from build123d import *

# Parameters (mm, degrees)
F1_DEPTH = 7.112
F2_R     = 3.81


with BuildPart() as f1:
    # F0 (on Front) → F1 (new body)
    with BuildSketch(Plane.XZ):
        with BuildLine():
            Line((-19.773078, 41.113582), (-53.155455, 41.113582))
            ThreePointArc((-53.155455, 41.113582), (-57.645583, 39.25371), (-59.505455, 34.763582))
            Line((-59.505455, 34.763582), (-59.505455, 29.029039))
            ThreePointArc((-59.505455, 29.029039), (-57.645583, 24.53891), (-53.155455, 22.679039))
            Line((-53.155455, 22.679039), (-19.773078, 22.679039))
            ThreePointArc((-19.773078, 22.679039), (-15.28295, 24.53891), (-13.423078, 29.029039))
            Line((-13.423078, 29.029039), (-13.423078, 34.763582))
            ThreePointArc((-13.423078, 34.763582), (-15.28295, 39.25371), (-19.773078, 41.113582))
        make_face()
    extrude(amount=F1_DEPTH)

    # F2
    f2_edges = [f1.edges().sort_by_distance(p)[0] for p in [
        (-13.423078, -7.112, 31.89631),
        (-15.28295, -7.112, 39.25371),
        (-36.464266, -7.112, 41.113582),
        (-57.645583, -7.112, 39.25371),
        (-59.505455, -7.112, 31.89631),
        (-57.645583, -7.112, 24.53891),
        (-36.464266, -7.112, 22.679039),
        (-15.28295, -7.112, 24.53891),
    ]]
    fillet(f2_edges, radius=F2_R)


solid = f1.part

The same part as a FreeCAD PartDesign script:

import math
import FreeCAD as App
import Part
import Sketcher
Q = App.Units.Quantity


def edges_at(feature, points):
    """Names of the edges that pass closest to the given points."""
    edges = feature.Shape.Edges
    near = lambda p: min(range(len(edges)), key=lambda i: edges[i].distToShape(Part.Vertex(*p))[0])
    return sorted({f"Edge{near(p) + 1}" for p in points})

doc = App.newDocument("Part")
params = doc.addObject("Spreadsheet::Sheet", "Params")
for row, (alias, value) in enumerate([
    ("sketch1_radius", "0.25 in"),
    ("pad1_length", "0.28 in"),
    ("fillet_radius", "0.15 in"),
], start=1):
    params.set(f"A{row}", alias)
    params.set(f"B{row}", "=" + value)
    params.setAlias(f"B{row}", alias)

body = doc.addObject("PartDesign::Body", "Body")

sketch1 = body.newObject("Sketcher::SketchObject", "Sketch")
sketch1.AttachmentSupport = (doc.getObject("XZ_Plane"), [""])
sketch1.MapMode = "FlatFace"
sketch1.addGeometry([
    Part.LineSegment(App.Vector(-20, 41, 0), App.Vector(-53, 41, 0)),
    Part.ArcOfCircle(Part.Circle(App.Vector(-53, 35, 0), App.Vector(0, 0, 1), 6), math.radians(90), math.radians(180)),
    Part.LineSegment(App.Vector(-60, 35, 0), App.Vector(-60, 29, 0)),
    Part.ArcOfCircle(Part.Circle(App.Vector(-53, 29, 0), App.Vector(0, 0, 1), 6), math.radians(180), math.radians(270)),
    Part.LineSegment(App.Vector(-53, 23, 0), App.Vector(-20, 23, 0)),
    Part.ArcOfCircle(Part.Circle(App.Vector(-20, 29, 0), App.Vector(0, 0, 1), 6), math.radians(-90), math.radians(0)),
    Part.LineSegment(App.Vector(-13, 29, 0), App.Vector(-13, 35, 0)),
    Part.ArcOfCircle(Part.Circle(App.Vector(-20, 35, 0), App.Vector(0, 0, 1), 6), math.radians(0), math.radians(90)),
], False)
sketch1.addConstraint([
    Sketcher.Constraint("Tangent", 0, 2, 1, 1),
    Sketcher.Constraint("Tangent", 1, 2, 2, 1),
    Sketcher.Constraint("Tangent", 2, 2, 3, 1),
    Sketcher.Constraint("Tangent", 3, 2, 4, 1),
    Sketcher.Constraint("Tangent", 4, 2, 5, 1),
    Sketcher.Constraint("Tangent", 5, 2, 6, 1),
    Sketcher.Constraint("Tangent", 6, 2, 7, 1),
    Sketcher.Constraint("Tangent", 7, 2, 0, 1),
    Sketcher.Constraint("Horizontal", 0),
    Sketcher.Constraint("Vertical", 2),
    Sketcher.Constraint("Horizontal", 4),
    Sketcher.Constraint("Vertical", 6),
    Sketcher.Constraint("Equal", 1, 3),
    Sketcher.Constraint("Equal", 3, 5),
    Sketcher.Constraint("Equal", 5, 7),
    Sketcher.Constraint("Radius", 1, Q("0.25 in")),
    Sketcher.Constraint("DistanceX", 0, 2, 0, 1, Q("33.382377 mm")),
    Sketcher.Constraint("DistanceY", 2, 2, 2, 1, Q("5.734543 mm")),
    Sketcher.Constraint("DistanceY", -1, 1, 1, 3, Q("34.763582 mm")),
    Sketcher.Constraint("DistanceX", 7, 3, -1, 1, Q("19.773078 mm")),
])
sketch1.setExpression("Constraints[15]", "Params.sketch1_radius")
pad1 = body.newObject("PartDesign::Pad", "Pad")
pad1.Profile = sketch1
pad1.setExpression("Length", "Params.pad1_length")
doc.recompute()

fillet = body.newObject("PartDesign::Fillet", "Fillet")
fillet.Base = (pad1, edges_at(pad1, [
    (-13.423, -7.112, 31.896),
    (-15.283, -7.112, 39.254),
    (-36.464, -7.112, 41.114),
    (-57.646, -7.112, 39.254),
    (-59.505, -7.112, 31.896),
    (-57.646, -7.112, 24.539),
    (-36.464, -7.112, 22.679),
    (-15.283, -7.112, 24.539),
]))
fillet.setExpression("Radius", "Params.fillet_radius")

doc.recompute()
